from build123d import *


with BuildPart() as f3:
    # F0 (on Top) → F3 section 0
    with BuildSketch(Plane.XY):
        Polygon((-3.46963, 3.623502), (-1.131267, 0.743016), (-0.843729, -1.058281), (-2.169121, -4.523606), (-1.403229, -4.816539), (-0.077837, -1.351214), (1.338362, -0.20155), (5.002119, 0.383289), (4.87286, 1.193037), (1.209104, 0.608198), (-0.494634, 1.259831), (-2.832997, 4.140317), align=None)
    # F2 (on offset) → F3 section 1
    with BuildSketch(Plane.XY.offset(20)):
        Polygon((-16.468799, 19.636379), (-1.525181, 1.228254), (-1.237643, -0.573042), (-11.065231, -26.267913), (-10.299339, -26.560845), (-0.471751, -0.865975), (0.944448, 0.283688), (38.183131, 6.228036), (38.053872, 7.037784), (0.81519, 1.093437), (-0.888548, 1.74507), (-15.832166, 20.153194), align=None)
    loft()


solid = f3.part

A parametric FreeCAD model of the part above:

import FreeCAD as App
import Part
import Sketcher
from FreeCAD import Vector

doc = App.newDocument("Part")
body = doc.addObject("PartDesign::Body", "Body")

# Sketch on XY plane
sketch1 = doc.addObject("Sketcher::SketchObject", "Sketch")
body.addObject(sketch1)
sketch1.AttachmentSupport = (doc.XY_Plane, [""])
sketch1.MapMode = "FlatFace"
sketch1.addGeometry([
    Part.LineSegment(Vector(-3.46963, 3.623502, 0), Vector(-1.131267, 0.743016, 0)),  # 0
    Part.LineSegment(Vector(-1.131267, 0.743016, 0), Vector(-0.843729, -1.058281, 0)),  # 1
    Part.LineSegment(Vector(-0.843729, -1.058281, 0), Vector(-2.169121, -4.523606, 0)),  # 2
    Part.LineSegment(Vector(-2.169121, -4.523606, 0), Vector(-1.403229, -4.816539, 0)),  # 3
    Part.LineSegment(Vector(-1.403229, -4.816539, 0), Vector(-0.077837, -1.351214, 0)),  # 4
    Part.LineSegment(Vector(-0.077837, -1.351214, 0), Vector(1.338362, -0.20155, 0)),  # 5
    Part.LineSegment(Vector(1.338362, -0.20155, 0), Vector(5.002119, 0.383289, 0)),  # 6
    Part.LineSegment(Vector(5.002119, 0.383289, 0), Vector(4.87286, 1.193037, 0)),  # 7
    Part.LineSegment(Vector(4.87286, 1.193037, 0), Vector(1.209104, 0.608198, 0)),  # 8
    Part.LineSegment(Vector(1.209104, 0.608198, 0), Vector(-0.494634, 1.259831, 0)),  # 9
    Part.LineSegment(Vector(-0.494634, 1.259831, 0), Vector(-2.832997, 4.140317, 0)),  # 10
    Part.LineSegment(Vector(-2.832997, 4.140317, 0), Vector(-3.46963, 3.623502, 0)),  # 11
], False)
sketch1.addConstraint([
    Sketcher.Constraint("Coincident", 0, 2, 1, 1),
    Sketcher.Constraint("Coincident", 1, 2, 2, 1),
    Sketcher.Constraint("Coincident", 2, 2, 3, 1),
    Sketcher.Constraint("Coincident", 3, 2, 4, 1),
    Sketcher.Constraint("Coincident", 4, 2, 5, 1),
    Sketcher.Constraint("Coincident", 5, 2, 6, 1),
    Sketcher.Constraint("Coincident", 6, 2, 7, 1),
    Sketcher.Constraint("Coincident", 7, 2, 8, 1),
    Sketcher.Constraint("Coincident", 8, 2, 9, 1),
    Sketcher.Constraint("Coincident", 9, 2, 10, 1),
    Sketcher.Constraint("Coincident", 10, 2, 11, 1),
    Sketcher.Constraint("Coincident", 11, 2, 0, 1),
    Sketcher.Constraint("Perpendicular", 2, 3),
    Sketcher.Constraint("Perpendicular", 3, 4),
    Sketcher.Constraint("Perpendicular", 0, 5),
    Sketcher.Constraint("Perpendicular", 1, 6),
    Sketcher.Constraint("Perpendicular", 6, 7),
    Sketcher.Constraint("Perpendicular", 7, 8),
    Sketcher.Constraint("Perpendicular", 4, 9),
    Sketcher.Constraint("Perpendicular", 5, 10),
    Sketcher.Constraint("Perpendicular", 10, 11),
    Sketcher.Constraint("Equal", 0, 2),
    Sketcher.Constraint("Equal", 2, 4),
    Sketcher.Constraint("Equal", 1, 5),
    Sketcher.Constraint("Equal", 4, 6),
    Sketcher.Constraint("Equal", 3, 7),
    Sketcher.Constraint("Equal", 6, 8),
    Sketcher.Constraint("Equal", 5, 9),
    Sketcher.Constraint("Equal", 8, 10),
    Sketcher.Constraint("Equal", 7, 11),
    Sketcher.Constraint("Distance", 3, 0.82),
    Sketcher.Constraint("Distance", 5, 1.824102),
    Sketcher.Constraint("DistanceY", -1, 1, 8, 2, 0.608198),
    Sketcher.Constraint("DistanceY", -1, 1, 11, 2, 3.623502),
    Sketcher.Constraint("DistanceX", 3, 2, 1, 2, 0.5595),
    Sketcher.Constraint("DistanceX", 1, 2, -1, 1, 0.843729),
])

# Sketch on XY plane
sketch2 = doc.addObject("Sketcher::SketchObject", "Sketch001")
body.addObject(sketch2)
sketch2.AttachmentSupport = (doc.XY_Plane, [""])
sketch2.MapMode = "FlatFace"
sketch2.AttachmentOffset = App.Placement(Vector(0, 0, 20), App.Rotation())
sketch2.addGeometry([
    Part.LineSegment(Vector(-16.468799, 19.636379, 0), Vector(-1.525181, 1.228254, 0)),  # 0
    Part.LineSegment(Vector(-1.525181, 1.228254, 0), Vector(-1.237643, -0.573042, 0)),  # 1
    Part.LineSegment(Vector(-1.237643, -0.573042, 0), Vector(-11.065231, -26.267913, 0)),  # 2
    Part.LineSegment(Vector(-11.065231, -26.267913, 0), Vector(-10.299339, -26.560845, 0)),  # 3
    Part.LineSegment(Vector(-10.299339, -26.560845, 0), Vector(-0.471751, -0.865975, 0)),  # 4
    Part.LineSegment(Vector(-0.471751, -0.865975, 0), Vector(0.944448, 0.283688, 0)),  # 5
    Part.LineSegment(Vector(0.944448, 0.283688, 0), Vector(38.183131, 6.228036, 0)),  # 6
    Part.LineSegment(Vector(38.183131, 6.228036, 0), Vector(38.053872, 7.037784, 0)),  # 7
    Part.LineSegment(Vector(38.053872, 7.037784, 0), Vector(0.81519, 1.093437, 0)),  # 8
    Part.LineSegment(Vector(0.81519, 1.093437, 0), Vector(-0.888548, 1.74507, 0)),  # 9
    Part.LineSegment(Vector(-0.888548, 1.74507, 0), Vector(-15.832166, 20.153194, 0)),  # 10
    Part.LineSegment(Vector(-15.832166, 20.153194, 0), Vector(-16.468799, 19.636379, 0)),  # 11
], False)
sketch2.addConstraint([
    Sketcher.Constraint("Coincident", 0, 2, 1, 1),
    Sketcher.Constraint("Coincident", 1, 2, 2, 1),
    Sketcher.Constraint("Coincident", 2, 2, 3, 1),
    Sketcher.Constraint("Coincident", 3, 2, 4, 1),
    Sketcher.Constraint("Coincident", 4, 2, 5, 1),
    Sketcher.Constraint("Coincident", 5, 2, 6, 1),
    Sketcher.Constraint("Coincident", 6, 2, 7, 1),
    Sketcher.Constraint("Coincident", 7, 2, 8, 1),
    Sketcher.Constraint("Coincident", 8, 2, 9, 1),
    Sketcher.Constraint("Coincident", 9, 2, 10, 1),
    Sketcher.Constraint("Coincident", 10, 2, 11, 1),
    Sketcher.Constraint("Coincident", 11, 2, 0, 1),
    Sketcher.Constraint("Perpendicular", 2, 3),
    Sketcher.Constraint("Perpendicular", 3, 4),
    Sketcher.Constraint("Perpendicular", 0, 5),
    Sketcher.Constraint("Perpendicular", 1, 6),
    Sketcher.Constraint("Perpendicular", 6, 7),
    Sketcher.Constraint("Perpendicular", 7, 8),
    Sketcher.Constraint("Perpendicular", 4, 9),
    Sketcher.Constraint("Perpendicular", 5, 10),
    Sketcher.Constraint("Perpendicular", 10, 11),
    Sketcher.Constraint("Equal", 2, 4),
    Sketcher.Constraint("Equal", 1, 5),
    Sketcher.Constraint("Equal", 3, 7),
    Sketcher.Constraint("Equal", 6, 8),
    Sketcher.Constraint("Equal", 5, 9),
    Sketcher.Constraint("Equal", 0, 10),
    Sketcher.Constraint("Equal", 7, 11),
    Sketcher.Constraint("Distance", 3, 0.82),
    Sketcher.Constraint("Distance", 1, 1.824101),
    Sketcher.Constraint("DistanceX", 11, 2, -1, 1, 16.468799),
    Sketcher.Constraint("DistanceY", 3, 2, 0, 2, 27.789099),
    Sketcher.Constraint("DistanceX", 4, 2, 5, 2, 1.416199),
    Sketcher.Constraint("Distance", 0, 23.710141),
    Sketcher.Constraint("Distance", 6, 37.710142),
    Sketcher.Constraint("DistanceY", -1, 1, 9, 2, 1.74507),
])

additiveloft = doc.addObject("PartDesign::AdditiveLoft", "AdditiveLoft")
body.addObject(additiveloft)
additiveloft.Profile = sketch1
additiveloft.Sections = [sketch2]

doc.recompute()
